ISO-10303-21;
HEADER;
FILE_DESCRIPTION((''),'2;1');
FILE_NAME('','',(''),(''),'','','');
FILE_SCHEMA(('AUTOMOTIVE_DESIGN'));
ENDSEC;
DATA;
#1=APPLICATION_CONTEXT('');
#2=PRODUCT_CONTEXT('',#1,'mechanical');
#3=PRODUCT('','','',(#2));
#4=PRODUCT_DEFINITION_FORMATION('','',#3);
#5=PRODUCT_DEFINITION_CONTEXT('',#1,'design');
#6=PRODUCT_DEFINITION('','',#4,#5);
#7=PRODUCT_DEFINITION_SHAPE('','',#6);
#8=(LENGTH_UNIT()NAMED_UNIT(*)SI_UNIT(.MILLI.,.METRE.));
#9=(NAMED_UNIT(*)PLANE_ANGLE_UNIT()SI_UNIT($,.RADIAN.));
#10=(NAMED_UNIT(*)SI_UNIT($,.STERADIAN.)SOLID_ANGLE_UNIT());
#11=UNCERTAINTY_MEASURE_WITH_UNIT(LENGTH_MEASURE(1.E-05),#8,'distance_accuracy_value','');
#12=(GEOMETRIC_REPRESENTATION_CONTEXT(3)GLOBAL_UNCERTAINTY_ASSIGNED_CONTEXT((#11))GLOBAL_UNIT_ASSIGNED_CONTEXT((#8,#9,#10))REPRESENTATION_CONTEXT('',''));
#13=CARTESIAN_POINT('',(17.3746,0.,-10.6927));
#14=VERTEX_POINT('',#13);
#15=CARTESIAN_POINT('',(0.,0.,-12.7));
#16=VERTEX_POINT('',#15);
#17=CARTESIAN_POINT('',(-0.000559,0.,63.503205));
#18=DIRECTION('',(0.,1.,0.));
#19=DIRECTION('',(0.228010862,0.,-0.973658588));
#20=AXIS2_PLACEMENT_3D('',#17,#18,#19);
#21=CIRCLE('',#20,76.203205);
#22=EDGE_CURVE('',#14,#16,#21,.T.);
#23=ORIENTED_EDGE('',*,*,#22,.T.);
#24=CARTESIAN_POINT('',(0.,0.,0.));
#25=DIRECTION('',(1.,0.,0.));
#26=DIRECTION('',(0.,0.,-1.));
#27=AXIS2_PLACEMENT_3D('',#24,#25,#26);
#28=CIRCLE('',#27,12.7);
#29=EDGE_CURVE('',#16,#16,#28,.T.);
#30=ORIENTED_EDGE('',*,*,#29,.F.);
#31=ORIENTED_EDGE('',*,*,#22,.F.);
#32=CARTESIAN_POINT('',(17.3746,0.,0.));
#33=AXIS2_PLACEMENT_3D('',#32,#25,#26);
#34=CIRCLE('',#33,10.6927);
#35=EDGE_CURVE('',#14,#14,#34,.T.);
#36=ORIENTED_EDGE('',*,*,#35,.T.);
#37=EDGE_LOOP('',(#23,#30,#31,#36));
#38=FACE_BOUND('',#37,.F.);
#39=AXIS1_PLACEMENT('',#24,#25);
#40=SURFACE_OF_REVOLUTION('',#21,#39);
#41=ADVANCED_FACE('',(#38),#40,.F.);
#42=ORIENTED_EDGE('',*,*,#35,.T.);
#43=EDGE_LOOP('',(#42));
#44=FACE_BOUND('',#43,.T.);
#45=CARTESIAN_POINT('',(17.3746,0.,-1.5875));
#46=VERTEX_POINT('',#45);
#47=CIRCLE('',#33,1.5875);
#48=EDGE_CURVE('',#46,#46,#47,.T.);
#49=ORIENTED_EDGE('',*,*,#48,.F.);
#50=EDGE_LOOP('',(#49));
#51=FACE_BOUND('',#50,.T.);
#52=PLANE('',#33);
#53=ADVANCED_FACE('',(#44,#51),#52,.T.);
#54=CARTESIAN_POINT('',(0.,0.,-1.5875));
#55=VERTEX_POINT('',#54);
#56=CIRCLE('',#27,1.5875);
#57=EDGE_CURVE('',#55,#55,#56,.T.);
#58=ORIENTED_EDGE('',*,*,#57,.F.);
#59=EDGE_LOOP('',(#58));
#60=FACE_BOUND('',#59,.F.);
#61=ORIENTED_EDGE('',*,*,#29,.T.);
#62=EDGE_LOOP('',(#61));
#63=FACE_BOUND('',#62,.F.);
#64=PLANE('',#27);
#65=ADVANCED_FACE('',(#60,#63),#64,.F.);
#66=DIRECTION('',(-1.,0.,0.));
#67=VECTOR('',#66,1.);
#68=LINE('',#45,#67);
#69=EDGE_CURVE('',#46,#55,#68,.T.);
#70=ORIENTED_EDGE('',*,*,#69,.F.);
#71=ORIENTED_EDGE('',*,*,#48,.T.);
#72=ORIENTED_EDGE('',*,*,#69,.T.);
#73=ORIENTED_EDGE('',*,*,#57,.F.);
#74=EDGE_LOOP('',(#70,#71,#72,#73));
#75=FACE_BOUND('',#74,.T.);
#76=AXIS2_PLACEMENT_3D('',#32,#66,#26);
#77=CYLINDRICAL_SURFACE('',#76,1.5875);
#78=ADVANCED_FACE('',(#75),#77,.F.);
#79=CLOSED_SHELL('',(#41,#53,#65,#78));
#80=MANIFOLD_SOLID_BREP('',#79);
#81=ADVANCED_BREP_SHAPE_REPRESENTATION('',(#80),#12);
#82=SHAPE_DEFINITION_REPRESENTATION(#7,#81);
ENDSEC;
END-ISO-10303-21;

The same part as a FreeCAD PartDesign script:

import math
import FreeCAD as App
import Part
import Sketcher
from FreeCAD import Vector
Q = App.Units.Quantity

doc = App.newDocument("Part")
body = doc.addObject("PartDesign::Body", "Body")

sketch1 = body.newObject("Sketcher::SketchObject", "Sketch")
sketch1.AttachmentSupport = (doc.getObject("XZ_Plane"), [""])
sketch1.MapMode = "FlatFace"
sketch1.addGeometry([
    Part.LineSegment(Vector(17, -2, 0), Vector(17, -11, 0)),
    Part.ArcOfCircle(Part.Circle(Vector(0, 64, 0), Vector(0, 0, 1), 76), math.radians(-90), math.radians(-76.82)),
    Part.LineSegment(Vector(0, -13, 0), Vector(0, -2, 0)),
    Part.LineSegment(Vector(0, -2, 0), Vector(17, -2, 0)),
], False)
sketch1.addConstraint([
    Sketcher.Constraint("Coincident", 0, 2, 1, 2),
    Sketcher.Constraint("Coincident", 1, 1, 2, 1),
    Sketcher.Constraint("Coincident", 2, 2, 3, 1),
    Sketcher.Constraint("Coincident", 3, 2, 0, 1),
    Sketcher.Constraint("Vertical", 0),
    Sketcher.Constraint("Vertical", 2),
    Sketcher.Constraint("Horizontal", 3),
    Sketcher.Constraint("PointOnObject", 1, 1, -2),
    Sketcher.Constraint("DistanceY", 1, 1, -1, 1, Q("0.5 in")),
    Sketcher.Constraint("DistanceY", 2, 2, -1, 1, Q("0.0625 in")),
    Sketcher.Constraint("Radius", 1, Q("76.2032 mm")),
    Sketcher.Constraint("DistanceX", 3, 1, 3, 2, Q("17.3746 mm")),
    Sketcher.Constraint("DistanceY", 0, 2, 0, 1, Q("9.1052 mm")),
])
revolution = body.newObject("PartDesign::Revolution", "Revolution")
revolution.Profile = sketch1
revolution.ReferenceAxis = (sketch1, ["H_Axis"])
revolution.Angle = 360

doc.recompute()
